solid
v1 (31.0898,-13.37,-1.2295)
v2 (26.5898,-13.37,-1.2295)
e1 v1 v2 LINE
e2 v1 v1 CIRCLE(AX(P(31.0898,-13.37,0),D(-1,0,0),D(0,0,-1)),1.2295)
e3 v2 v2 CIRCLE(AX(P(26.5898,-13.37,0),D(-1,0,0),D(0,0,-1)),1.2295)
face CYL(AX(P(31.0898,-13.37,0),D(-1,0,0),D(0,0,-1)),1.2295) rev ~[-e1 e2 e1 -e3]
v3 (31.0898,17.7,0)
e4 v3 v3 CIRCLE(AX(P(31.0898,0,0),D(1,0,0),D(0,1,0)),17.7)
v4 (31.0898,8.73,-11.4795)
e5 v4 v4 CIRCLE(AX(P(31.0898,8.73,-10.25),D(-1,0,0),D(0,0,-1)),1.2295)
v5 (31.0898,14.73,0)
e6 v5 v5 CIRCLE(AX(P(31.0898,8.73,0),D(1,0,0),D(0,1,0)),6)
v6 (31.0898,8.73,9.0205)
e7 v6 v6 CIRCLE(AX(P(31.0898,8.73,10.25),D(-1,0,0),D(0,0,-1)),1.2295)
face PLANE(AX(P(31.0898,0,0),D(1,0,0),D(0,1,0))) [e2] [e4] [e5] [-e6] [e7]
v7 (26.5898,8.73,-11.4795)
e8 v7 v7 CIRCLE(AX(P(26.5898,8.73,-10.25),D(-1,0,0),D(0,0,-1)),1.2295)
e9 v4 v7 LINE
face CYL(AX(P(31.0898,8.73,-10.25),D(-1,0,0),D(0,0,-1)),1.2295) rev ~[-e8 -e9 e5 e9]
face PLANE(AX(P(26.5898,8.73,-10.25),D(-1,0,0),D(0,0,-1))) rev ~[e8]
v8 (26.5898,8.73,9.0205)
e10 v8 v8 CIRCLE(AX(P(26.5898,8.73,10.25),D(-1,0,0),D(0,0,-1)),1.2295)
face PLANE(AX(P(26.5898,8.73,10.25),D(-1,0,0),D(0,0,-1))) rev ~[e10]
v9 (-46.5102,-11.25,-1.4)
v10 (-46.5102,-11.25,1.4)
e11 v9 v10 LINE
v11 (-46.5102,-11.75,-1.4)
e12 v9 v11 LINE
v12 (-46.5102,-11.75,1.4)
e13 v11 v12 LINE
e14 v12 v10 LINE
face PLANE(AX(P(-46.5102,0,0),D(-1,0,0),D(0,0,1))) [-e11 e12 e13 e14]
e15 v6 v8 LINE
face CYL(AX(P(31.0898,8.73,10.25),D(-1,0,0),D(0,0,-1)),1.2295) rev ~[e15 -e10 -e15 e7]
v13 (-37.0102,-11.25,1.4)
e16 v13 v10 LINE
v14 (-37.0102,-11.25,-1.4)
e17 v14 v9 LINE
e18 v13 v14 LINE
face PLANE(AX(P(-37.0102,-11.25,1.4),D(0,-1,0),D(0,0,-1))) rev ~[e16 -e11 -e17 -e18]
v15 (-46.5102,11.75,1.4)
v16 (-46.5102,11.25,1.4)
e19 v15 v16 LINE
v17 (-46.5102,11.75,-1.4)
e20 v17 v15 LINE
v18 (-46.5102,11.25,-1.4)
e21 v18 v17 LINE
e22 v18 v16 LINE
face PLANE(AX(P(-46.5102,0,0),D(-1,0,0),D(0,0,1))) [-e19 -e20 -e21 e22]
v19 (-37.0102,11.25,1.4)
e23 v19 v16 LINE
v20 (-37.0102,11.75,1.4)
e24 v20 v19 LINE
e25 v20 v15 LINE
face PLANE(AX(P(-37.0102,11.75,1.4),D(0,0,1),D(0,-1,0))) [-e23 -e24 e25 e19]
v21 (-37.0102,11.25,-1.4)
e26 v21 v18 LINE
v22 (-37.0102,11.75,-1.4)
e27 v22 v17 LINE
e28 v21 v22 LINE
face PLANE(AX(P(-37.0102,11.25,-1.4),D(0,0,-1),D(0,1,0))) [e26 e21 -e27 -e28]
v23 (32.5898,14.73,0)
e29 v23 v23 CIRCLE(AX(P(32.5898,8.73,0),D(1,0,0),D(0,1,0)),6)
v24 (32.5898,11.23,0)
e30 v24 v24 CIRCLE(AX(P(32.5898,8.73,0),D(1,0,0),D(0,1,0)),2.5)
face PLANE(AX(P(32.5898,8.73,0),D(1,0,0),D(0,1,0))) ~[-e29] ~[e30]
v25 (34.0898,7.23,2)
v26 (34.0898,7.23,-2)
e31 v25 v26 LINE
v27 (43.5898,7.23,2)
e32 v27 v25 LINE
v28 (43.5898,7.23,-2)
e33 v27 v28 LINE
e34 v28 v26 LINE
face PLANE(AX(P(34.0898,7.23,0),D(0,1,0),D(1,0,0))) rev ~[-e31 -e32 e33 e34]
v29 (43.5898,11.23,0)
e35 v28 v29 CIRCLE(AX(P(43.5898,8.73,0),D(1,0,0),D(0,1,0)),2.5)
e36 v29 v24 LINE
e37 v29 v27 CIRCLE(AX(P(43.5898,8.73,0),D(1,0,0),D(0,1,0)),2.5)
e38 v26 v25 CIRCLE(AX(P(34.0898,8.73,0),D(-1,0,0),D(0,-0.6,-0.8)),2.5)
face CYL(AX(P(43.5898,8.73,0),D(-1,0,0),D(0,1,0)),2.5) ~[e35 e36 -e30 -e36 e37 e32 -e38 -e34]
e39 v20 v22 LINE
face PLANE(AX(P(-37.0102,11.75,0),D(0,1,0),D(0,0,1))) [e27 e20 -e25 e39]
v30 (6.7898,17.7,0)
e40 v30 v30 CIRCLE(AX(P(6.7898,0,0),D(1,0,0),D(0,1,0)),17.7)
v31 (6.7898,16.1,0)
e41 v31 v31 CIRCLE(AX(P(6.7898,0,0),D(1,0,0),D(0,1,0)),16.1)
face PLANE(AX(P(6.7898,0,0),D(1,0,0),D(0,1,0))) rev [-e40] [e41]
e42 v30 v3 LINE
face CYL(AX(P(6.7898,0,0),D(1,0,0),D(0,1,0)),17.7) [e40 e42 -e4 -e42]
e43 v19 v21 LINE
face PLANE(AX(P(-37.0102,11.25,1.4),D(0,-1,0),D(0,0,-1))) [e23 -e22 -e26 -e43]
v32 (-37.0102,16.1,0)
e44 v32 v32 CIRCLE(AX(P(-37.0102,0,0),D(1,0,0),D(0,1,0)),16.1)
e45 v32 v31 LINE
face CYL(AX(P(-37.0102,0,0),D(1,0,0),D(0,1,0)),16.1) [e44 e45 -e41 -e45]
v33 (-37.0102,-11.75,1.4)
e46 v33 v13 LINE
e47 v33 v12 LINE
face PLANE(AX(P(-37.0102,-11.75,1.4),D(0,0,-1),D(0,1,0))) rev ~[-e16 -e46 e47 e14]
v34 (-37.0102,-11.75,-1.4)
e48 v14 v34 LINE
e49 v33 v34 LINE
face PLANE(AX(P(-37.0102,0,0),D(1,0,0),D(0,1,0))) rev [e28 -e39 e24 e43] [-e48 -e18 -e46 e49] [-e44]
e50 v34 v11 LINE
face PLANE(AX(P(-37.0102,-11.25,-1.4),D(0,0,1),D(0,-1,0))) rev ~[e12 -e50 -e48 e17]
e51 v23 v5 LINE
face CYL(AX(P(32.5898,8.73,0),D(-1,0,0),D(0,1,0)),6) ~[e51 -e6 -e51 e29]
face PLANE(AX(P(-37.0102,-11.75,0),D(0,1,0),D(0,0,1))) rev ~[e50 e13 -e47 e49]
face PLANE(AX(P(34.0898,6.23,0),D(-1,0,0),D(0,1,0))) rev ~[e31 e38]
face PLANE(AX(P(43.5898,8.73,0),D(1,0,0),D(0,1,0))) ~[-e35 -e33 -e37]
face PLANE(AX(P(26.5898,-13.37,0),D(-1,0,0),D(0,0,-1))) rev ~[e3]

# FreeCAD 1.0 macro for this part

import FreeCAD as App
import Part
import Sketcher
Q = App.Units.Quantity

doc = App.newDocument("Part")
body = doc.addObject("PartDesign::Body", "Body")

# Sketch on XY plane
sketch1 = body.newObject("Sketcher::SketchObject", "Sketch")
sketch1.AttachmentSupport = (doc.getObject("XY_Plane"), [""])
sketch1.MapMode = "FlatFace"
sketch1.addGeometry(Part.LineSegment(App.Vector(-37, 16.1, 0), App.Vector(-37, 0, 0)), False)
sketch1.addGeometry(Part.LineSegment(App.Vector(-37, 0, 0), App.Vector(31.1, 0, 0)), False)
sketch1.addGeometry(Part.LineSegment(App.Vector(31.1, 0, 0), App.Vector(31.1, 17.7, 0)), False)
sketch1.addGeometry(Part.LineSegment(App.Vector(31.1, 17.7, 0), App.Vector(6.8, 17.7, 0)), False)
sketch1.addGeometry(Part.LineSegment(App.Vector(6.8, 17.7, 0), App.Vector(6.8, 16.1, 0)), False)
sketch1.addGeometry(Part.LineSegment(App.Vector(6.8, 16.1, 0), App.Vector(-37, 16.1, 0)), False)
sketch1.addConstraint(Sketcher.Constraint("Coincident", 0, 2, 1, 1))
sketch1.addConstraint(Sketcher.Constraint("Coincident", 1, 2, 2, 1))
sketch1.addConstraint(Sketcher.Constraint("Coincident", 2, 2, 3, 1))
sketch1.addConstraint(Sketcher.Constraint("Coincident", 3, 2, 4, 1))
sketch1.addConstraint(Sketcher.Constraint("Coincident", 4, 2, 5, 1))
sketch1.addConstraint(Sketcher.Constraint("Coincident", 5, 2, 0, 1))
sketch1.addConstraint(Sketcher.Constraint("Vertical", 0))
sketch1.addConstraint(Sketcher.Constraint("Horizontal", 1))
sketch1.addConstraint(Sketcher.Constraint("Vertical", 2))
sketch1.addConstraint(Sketcher.Constraint("Horizontal", 3))
sketch1.addConstraint(Sketcher.Constraint("Vertical", 4))
sketch1.addConstraint(Sketcher.Constraint("Horizontal", 5))
sketch1.addConstraint(Sketcher.Constraint("PointOnObject", 0, 2, -1))
sketch1.addConstraint(Sketcher.Constraint("DistanceX", 1, 1, 1, 2, Q("68.1 mm")))
sketch1.addConstraint(Sketcher.Constraint("DistanceX", 3, 2, 3, 1, Q("24.3 mm")))
sketch1.addConstraint(Sketcher.Constraint("DistanceY", 0, 2, 0, 1, Q("16.1 mm")))
sketch1.addConstraint(Sketcher.Constraint("DistanceY", 2, 1, 2, 2, Q("17.7 mm")))
sketch1.addConstraint(Sketcher.Constraint("DistanceX", 0, 2, -1, 1, Q("37.0102 mm")))
revolution = body.newObject("PartDesign::Revolution", "Revolution")
revolution.Profile = sketch1
revolution.ReferenceAxis = (sketch1, ["H_Axis"])
revolution.Angle = 360

# Sketch on XY plane
sketch2 = body.newObject("Sketcher::SketchObject", "Sketch001")
sketch2.AttachmentSupport = (doc.getObject("XY_Plane"), [""])
sketch2.MapMode = "FlatFace"
sketch2.addGeometry(Part.LineSegment(App.Vector(31.1, 14.7, 0), App.Vector(31.1, 8.7, 0)), False)
sketch2.addGeometry(Part.LineSegment(App.Vector(31.1, 8.7, 0), App.Vector(43.6, 8.7, 0)), False)
sketch2.addGeometry(Part.LineSegment(App.Vector(43.6, 8.7, 0), App.Vector(43.6, 11.2, 0)), False)
sketch2.addGeometry(Part.LineSegment(App.Vector(43.6, 11.2, 0), App.Vector(32.6, 11.2, 0)), False)
sketch2.addGeometry(Part.LineSegment(App.Vector(32.6, 11.2, 0), App.Vector(32.6, 14.7, 0)), False)
sketch2.addGeometry(Part.LineSegment(App.Vector(32.6, 14.7, 0), App.Vector(31.1, 14.7, 0)), False)
sketch2.addGeometry(Part.LineSegment(App.Vector(31.1, 8.7, 0), App.Vector(43.6, 8.7, 0)), True)  # axis
sketch2.addConstraint(Sketcher.Constraint("Coincident", 0, 2, 1, 1))
sketch2.addConstraint(Sketcher.Constraint("Coincident", 1, 2, 2, 1))
sketch2.addConstraint(Sketcher.Constraint("Coincident", 2, 2, 3, 1))
sketch2.addConstraint(Sketcher.Constraint("Coincident", 3, 2, 4, 1))
sketch2.addConstraint(Sketcher.Constraint("Coincident", 4, 2, 5, 1))
sketch2.addConstraint(Sketcher.Constraint("Coincident", 5, 2, 0, 1))
sketch2.addConstraint(Sketcher.Constraint("Vertical", 0))
sketch2.addConstraint(Sketcher.Constraint("Horizontal", 1))
sketch2.addConstraint(Sketcher.Constraint("Vertical", 2))
sketch2.addConstraint(Sketcher.Constraint("Horizontal", 3))
sketch2.addConstraint(Sketcher.Constraint("Vertical", 4))
sketch2.addConstraint(Sketcher.Constraint("Horizontal", 5))
sketch2.addConstraint(Sketcher.Constraint("Horizontal", 6))
sketch2.addConstraint(Sketcher.Constraint("Coincident", 6, 1, 0, 2))
sketch2.addConstraint(Sketcher.Constraint("Vertical", 2, 2, 6, 2))
sketch2.addConstraint(Sketcher.Constraint("DistanceY", 0, 2, 0, 1, Q("6 mm")))
sketch2.addConstraint(Sketcher.Constraint("DistanceX", 1, 1, 1, 2, Q("12.5 mm")))
sketch2.addConstraint(Sketcher.Constraint("DistanceX", 5, 2, 5, 1, Q("1.5 mm")))
sketch2.addConstraint(Sketcher.Constraint("DistanceY", 2, 1, 2, 2, Q("2.5 mm")))
sketch2.addConstraint(Sketcher.Constraint("DistanceY", -1, 1, 0, 2, Q("8.73 mm")))
sketch2.addConstraint(Sketcher.Constraint("DistanceX", -1, 1, 0, 2, Q("31.0898 mm")))
revolution2 = body.newObject("PartDesign::Revolution", "Revolution001")
revolution2.Profile = sketch2
revolution2.ReferenceAxis = (sketch2, ["Axis0"])
revolution2.Angle = 360

# Sketch on XY plane
sketch3 = body.newObject("Sketcher::SketchObject", "Sketch002")
sketch3.AttachmentSupport = (doc.getObject("XY_Plane"), [""])
sketch3.MapMode = "FlatFace"
sketch3.addGeometry(Part.LineSegment(App.Vector(34.1, 7.2, 0), App.Vector(34.1, 6.2, 0)), False)
sketch3.addGeometry(Part.LineSegment(App.Vector(34.1, 6.2, 0), App.Vector(43.6, 6.2, 0)), False)
sketch3.addGeometry(Part.LineSegment(App.Vector(43.6, 6.2, 0), App.Vector(43.6, 7.2, 0)), False)
sketch3.addGeometry(Part.LineSegment(App.Vector(43.6, 7.2, 0), App.Vector(34.1, 7.2, 0)), False)
sketch3.addConstraint(Sketcher.Constraint("Coincident", 0, 2, 1, 1))
sketch3.addConstraint(Sketcher.Constraint("Coincident", 1, 2, 2, 1))
sketch3.addConstraint(Sketcher.Constraint("Coincident", 2, 2, 3, 1))
sketch3.addConstraint(Sketcher.Constraint("Coincident", 3, 2, 0, 1))
sketch3.addConstraint(Sketcher.Constraint("Vertical", 0))
sketch3.addConstraint(Sketcher.Constraint("Horizontal", 1))
sketch3.addConstraint(Sketcher.Constraint("Vertical", 2))
sketch3.addConstraint(Sketcher.Constraint("Horizontal", 3))
sketch3.addConstraint(Sketcher.Constraint("DistanceY", 0, 2, 0, 1, Q("1 mm")))
sketch3.addConstraint(Sketcher.Constraint("DistanceX", 1, 1, 1, 2, Q("9.5 mm")))
sketch3.addConstraint(Sketcher.Constraint("DistanceY", -1, 1, 0, 2, Q("6.23 mm")))
sketch3.addConstraint(Sketcher.Constraint("DistanceX", -1, 1, 0, 2, Q("34.0898 mm")))
pocket1 = body.newObject("PartDesign::Pocket", "Pocket")
pocket1.Profile = sketch3
pocket1.Length = 10
pocket1.Midplane = True

# Sketch on YZ plane
sketch4 = body.newObject("Sketcher::SketchObject", "Sketch003")
sketch4.AttachmentSupport = (doc.getObject("YZ_Plane"), [""])
sketch4.MapMode = "FlatFace"
sketch4.AttachmentOffset = App.Placement(App.Vector(0, 0, 31.0898), App.Rotation())
sketch4.addGeometry(Part.Circle(App.Vector(8.7, 10.2, 0), App.Vector(0, 0, 1), 1.2), False)
sketch4.addGeometry(Part.Circle(App.Vector(8.7, -10.2, 0), App.Vector(0, 0, 1), 1.2), False)
sketch4.addGeometry(Part.Circle(App.Vector(-13.4, 0, 0), App.Vector(0, 0, 1), 1.2), False)
sketch4.addConstraint(Sketcher.Constraint("Equal", 0, 1))
sketch4.addConstraint(Sketcher.Constraint("Equal", 1, 2))
sketch4.addConstraint(Sketcher.Constraint("Symmetric", 0, 3, 1, 3, -1))
sketch4.addConstraint(Sketcher.Constraint("PointOnObject", 2, 3, -1))
sketch4.addConstraint(Sketcher.Constraint("Diameter", 0, Q("2.459 mm")))
sketch4.addConstraint(Sketcher.Constraint("DistanceY", 1, 3, 0, 3, Q("20.5 mm")))
sketch4.addConstraint(Sketcher.Constraint("DistanceX", 2, 3, 0, 3, Q("22.1 mm")))
sketch4.addConstraint(Sketcher.Constraint("DistanceX", -1, 1, 0, 3, Q("8.73 mm")))
doc.recompute()
hole = body.newObject("PartDesign::Hole", "Hole")
hole.Profile = sketch4
hole.ThreadType = "None"
hole.Diameter = 2.459
hole.DepthType = "Dimension"
hole.Depth = 4.5
hole.DrillPoint = "Flat"

# Sketch on YZ plane
sketch5 = body.newObject("Sketcher::SketchObject", "Sketch004")
sketch5.AttachmentSupport = (doc.getObject("YZ_Plane"), [""])
sketch5.MapMode = "FlatFace"
sketch5.AttachmentOffset = App.Placement(App.Vector(0, 0, -37.0102), App.Rotation())
sketch5.addGeometry(Part.LineSegment(App.Vector(11.8, 1.4, 0), App.Vector(11.8, -1.4, 0)), False)
sketch5.addGeometry(Part.LineSegment(App.Vector(11.8, -1.4, 0), App.Vector(11.2, -1.4, 0)), False)
sketch5.addGeometry(Part.LineSegment(App.Vector(11.2, -1.4, 0), App.Vector(11.2, 1.4, 0)), False)
sketch5.addGeometry(Part.LineSegment(App.Vector(11.2, 1.4, 0), App.Vector(11.8, 1.4, 0)), False)
sketch5.addGeometry(Part.LineSegment(App.Vector(-11.2, 1.4, 0), App.Vector(-11.2, -1.4, 0)), False)
sketch5.addGeometry(Part.LineSegment(App.Vector(-11.2, -1.4, 0), App.Vector(-11.8, -1.4, 0)), False)
sketch5.addGeometry(Part.LineSegment(App.Vector(-11.8, -1.4, 0), App.Vector(-11.8, 1.4, 0)), False)
sketch5.addGeometry(Part.LineSegment(App.Vector(-11.8, 1.4, 0), App.Vector(-11.2, 1.4, 0)), False)
sketch5.addConstraint(Sketcher.Constraint("Coincident", 0, 2, 1, 1))
sketch5.addConstraint(Sketcher.Constraint("Coincident", 1, 2, 2, 1))
sketch5.addConstraint(Sketcher.Constraint("Coincident", 2, 2, 3, 1))
sketch5.addConstraint(Sketcher.Constraint("Coincident", 3, 2, 0, 1))
sketch5.addConstraint(Sketcher.Constraint("Coincident", 4, 2, 5, 1))
sketch5.addConstraint(Sketcher.Constraint("Coincident", 5, 2, 6, 1))
sketch5.addConstraint(Sketcher.Constraint("Coincident", 6, 2, 7, 1))
sketch5.addConstraint(Sketcher.Constraint("Coincident", 7, 2, 4, 1))
sketch5.addConstraint(Sketcher.Constraint("Vertical", 0))
sketch5.addConstraint(Sketcher.Constraint("Horizontal", 1))
sketch5.addConstraint(Sketcher.Constraint("Vertical", 2))
sketch5.addConstraint(Sketcher.Constraint("Horizontal", 3))
sketch5.addConstraint(Sketcher.Constraint("Vertical", 4))
sketch5.addConstraint(Sketcher.Constraint("Horizontal", 5))
sketch5.addConstraint(Sketcher.Constraint("Vertical", 6))
sketch5.addConstraint(Sketcher.Constraint("Horizontal", 7))
sketch5.addConstraint(Sketcher.Constraint("Symmetric", 2, 2, 4, 2, -1, 1))
sketch5.addConstraint(Sketcher.Constraint("Symmetric", 0, 2, 6, 2, -1, 1))
sketch5.addConstraint(Sketcher.Constraint("Horizontal", 1, 2, 4, 2))
sketch5.addConstraint(Sketcher.Constraint("DistanceX", 1, 2, 1, 1, Q("0.5 mm")))
sketch5.addConstraint(Sketcher.Constraint("DistanceY", 0, 2, 0, 1, Q("2.8 mm")))
sketch5.addConstraint(Sketcher.Constraint("DistanceX", -1, 1, 1, 2, Q("11.25 mm")))
pad1 = body.newObject("PartDesign::Pad", "Pad")
pad1.Profile = sketch5
pad1.Length = 9.5
pad1.Reversed = True

doc.recompute()
